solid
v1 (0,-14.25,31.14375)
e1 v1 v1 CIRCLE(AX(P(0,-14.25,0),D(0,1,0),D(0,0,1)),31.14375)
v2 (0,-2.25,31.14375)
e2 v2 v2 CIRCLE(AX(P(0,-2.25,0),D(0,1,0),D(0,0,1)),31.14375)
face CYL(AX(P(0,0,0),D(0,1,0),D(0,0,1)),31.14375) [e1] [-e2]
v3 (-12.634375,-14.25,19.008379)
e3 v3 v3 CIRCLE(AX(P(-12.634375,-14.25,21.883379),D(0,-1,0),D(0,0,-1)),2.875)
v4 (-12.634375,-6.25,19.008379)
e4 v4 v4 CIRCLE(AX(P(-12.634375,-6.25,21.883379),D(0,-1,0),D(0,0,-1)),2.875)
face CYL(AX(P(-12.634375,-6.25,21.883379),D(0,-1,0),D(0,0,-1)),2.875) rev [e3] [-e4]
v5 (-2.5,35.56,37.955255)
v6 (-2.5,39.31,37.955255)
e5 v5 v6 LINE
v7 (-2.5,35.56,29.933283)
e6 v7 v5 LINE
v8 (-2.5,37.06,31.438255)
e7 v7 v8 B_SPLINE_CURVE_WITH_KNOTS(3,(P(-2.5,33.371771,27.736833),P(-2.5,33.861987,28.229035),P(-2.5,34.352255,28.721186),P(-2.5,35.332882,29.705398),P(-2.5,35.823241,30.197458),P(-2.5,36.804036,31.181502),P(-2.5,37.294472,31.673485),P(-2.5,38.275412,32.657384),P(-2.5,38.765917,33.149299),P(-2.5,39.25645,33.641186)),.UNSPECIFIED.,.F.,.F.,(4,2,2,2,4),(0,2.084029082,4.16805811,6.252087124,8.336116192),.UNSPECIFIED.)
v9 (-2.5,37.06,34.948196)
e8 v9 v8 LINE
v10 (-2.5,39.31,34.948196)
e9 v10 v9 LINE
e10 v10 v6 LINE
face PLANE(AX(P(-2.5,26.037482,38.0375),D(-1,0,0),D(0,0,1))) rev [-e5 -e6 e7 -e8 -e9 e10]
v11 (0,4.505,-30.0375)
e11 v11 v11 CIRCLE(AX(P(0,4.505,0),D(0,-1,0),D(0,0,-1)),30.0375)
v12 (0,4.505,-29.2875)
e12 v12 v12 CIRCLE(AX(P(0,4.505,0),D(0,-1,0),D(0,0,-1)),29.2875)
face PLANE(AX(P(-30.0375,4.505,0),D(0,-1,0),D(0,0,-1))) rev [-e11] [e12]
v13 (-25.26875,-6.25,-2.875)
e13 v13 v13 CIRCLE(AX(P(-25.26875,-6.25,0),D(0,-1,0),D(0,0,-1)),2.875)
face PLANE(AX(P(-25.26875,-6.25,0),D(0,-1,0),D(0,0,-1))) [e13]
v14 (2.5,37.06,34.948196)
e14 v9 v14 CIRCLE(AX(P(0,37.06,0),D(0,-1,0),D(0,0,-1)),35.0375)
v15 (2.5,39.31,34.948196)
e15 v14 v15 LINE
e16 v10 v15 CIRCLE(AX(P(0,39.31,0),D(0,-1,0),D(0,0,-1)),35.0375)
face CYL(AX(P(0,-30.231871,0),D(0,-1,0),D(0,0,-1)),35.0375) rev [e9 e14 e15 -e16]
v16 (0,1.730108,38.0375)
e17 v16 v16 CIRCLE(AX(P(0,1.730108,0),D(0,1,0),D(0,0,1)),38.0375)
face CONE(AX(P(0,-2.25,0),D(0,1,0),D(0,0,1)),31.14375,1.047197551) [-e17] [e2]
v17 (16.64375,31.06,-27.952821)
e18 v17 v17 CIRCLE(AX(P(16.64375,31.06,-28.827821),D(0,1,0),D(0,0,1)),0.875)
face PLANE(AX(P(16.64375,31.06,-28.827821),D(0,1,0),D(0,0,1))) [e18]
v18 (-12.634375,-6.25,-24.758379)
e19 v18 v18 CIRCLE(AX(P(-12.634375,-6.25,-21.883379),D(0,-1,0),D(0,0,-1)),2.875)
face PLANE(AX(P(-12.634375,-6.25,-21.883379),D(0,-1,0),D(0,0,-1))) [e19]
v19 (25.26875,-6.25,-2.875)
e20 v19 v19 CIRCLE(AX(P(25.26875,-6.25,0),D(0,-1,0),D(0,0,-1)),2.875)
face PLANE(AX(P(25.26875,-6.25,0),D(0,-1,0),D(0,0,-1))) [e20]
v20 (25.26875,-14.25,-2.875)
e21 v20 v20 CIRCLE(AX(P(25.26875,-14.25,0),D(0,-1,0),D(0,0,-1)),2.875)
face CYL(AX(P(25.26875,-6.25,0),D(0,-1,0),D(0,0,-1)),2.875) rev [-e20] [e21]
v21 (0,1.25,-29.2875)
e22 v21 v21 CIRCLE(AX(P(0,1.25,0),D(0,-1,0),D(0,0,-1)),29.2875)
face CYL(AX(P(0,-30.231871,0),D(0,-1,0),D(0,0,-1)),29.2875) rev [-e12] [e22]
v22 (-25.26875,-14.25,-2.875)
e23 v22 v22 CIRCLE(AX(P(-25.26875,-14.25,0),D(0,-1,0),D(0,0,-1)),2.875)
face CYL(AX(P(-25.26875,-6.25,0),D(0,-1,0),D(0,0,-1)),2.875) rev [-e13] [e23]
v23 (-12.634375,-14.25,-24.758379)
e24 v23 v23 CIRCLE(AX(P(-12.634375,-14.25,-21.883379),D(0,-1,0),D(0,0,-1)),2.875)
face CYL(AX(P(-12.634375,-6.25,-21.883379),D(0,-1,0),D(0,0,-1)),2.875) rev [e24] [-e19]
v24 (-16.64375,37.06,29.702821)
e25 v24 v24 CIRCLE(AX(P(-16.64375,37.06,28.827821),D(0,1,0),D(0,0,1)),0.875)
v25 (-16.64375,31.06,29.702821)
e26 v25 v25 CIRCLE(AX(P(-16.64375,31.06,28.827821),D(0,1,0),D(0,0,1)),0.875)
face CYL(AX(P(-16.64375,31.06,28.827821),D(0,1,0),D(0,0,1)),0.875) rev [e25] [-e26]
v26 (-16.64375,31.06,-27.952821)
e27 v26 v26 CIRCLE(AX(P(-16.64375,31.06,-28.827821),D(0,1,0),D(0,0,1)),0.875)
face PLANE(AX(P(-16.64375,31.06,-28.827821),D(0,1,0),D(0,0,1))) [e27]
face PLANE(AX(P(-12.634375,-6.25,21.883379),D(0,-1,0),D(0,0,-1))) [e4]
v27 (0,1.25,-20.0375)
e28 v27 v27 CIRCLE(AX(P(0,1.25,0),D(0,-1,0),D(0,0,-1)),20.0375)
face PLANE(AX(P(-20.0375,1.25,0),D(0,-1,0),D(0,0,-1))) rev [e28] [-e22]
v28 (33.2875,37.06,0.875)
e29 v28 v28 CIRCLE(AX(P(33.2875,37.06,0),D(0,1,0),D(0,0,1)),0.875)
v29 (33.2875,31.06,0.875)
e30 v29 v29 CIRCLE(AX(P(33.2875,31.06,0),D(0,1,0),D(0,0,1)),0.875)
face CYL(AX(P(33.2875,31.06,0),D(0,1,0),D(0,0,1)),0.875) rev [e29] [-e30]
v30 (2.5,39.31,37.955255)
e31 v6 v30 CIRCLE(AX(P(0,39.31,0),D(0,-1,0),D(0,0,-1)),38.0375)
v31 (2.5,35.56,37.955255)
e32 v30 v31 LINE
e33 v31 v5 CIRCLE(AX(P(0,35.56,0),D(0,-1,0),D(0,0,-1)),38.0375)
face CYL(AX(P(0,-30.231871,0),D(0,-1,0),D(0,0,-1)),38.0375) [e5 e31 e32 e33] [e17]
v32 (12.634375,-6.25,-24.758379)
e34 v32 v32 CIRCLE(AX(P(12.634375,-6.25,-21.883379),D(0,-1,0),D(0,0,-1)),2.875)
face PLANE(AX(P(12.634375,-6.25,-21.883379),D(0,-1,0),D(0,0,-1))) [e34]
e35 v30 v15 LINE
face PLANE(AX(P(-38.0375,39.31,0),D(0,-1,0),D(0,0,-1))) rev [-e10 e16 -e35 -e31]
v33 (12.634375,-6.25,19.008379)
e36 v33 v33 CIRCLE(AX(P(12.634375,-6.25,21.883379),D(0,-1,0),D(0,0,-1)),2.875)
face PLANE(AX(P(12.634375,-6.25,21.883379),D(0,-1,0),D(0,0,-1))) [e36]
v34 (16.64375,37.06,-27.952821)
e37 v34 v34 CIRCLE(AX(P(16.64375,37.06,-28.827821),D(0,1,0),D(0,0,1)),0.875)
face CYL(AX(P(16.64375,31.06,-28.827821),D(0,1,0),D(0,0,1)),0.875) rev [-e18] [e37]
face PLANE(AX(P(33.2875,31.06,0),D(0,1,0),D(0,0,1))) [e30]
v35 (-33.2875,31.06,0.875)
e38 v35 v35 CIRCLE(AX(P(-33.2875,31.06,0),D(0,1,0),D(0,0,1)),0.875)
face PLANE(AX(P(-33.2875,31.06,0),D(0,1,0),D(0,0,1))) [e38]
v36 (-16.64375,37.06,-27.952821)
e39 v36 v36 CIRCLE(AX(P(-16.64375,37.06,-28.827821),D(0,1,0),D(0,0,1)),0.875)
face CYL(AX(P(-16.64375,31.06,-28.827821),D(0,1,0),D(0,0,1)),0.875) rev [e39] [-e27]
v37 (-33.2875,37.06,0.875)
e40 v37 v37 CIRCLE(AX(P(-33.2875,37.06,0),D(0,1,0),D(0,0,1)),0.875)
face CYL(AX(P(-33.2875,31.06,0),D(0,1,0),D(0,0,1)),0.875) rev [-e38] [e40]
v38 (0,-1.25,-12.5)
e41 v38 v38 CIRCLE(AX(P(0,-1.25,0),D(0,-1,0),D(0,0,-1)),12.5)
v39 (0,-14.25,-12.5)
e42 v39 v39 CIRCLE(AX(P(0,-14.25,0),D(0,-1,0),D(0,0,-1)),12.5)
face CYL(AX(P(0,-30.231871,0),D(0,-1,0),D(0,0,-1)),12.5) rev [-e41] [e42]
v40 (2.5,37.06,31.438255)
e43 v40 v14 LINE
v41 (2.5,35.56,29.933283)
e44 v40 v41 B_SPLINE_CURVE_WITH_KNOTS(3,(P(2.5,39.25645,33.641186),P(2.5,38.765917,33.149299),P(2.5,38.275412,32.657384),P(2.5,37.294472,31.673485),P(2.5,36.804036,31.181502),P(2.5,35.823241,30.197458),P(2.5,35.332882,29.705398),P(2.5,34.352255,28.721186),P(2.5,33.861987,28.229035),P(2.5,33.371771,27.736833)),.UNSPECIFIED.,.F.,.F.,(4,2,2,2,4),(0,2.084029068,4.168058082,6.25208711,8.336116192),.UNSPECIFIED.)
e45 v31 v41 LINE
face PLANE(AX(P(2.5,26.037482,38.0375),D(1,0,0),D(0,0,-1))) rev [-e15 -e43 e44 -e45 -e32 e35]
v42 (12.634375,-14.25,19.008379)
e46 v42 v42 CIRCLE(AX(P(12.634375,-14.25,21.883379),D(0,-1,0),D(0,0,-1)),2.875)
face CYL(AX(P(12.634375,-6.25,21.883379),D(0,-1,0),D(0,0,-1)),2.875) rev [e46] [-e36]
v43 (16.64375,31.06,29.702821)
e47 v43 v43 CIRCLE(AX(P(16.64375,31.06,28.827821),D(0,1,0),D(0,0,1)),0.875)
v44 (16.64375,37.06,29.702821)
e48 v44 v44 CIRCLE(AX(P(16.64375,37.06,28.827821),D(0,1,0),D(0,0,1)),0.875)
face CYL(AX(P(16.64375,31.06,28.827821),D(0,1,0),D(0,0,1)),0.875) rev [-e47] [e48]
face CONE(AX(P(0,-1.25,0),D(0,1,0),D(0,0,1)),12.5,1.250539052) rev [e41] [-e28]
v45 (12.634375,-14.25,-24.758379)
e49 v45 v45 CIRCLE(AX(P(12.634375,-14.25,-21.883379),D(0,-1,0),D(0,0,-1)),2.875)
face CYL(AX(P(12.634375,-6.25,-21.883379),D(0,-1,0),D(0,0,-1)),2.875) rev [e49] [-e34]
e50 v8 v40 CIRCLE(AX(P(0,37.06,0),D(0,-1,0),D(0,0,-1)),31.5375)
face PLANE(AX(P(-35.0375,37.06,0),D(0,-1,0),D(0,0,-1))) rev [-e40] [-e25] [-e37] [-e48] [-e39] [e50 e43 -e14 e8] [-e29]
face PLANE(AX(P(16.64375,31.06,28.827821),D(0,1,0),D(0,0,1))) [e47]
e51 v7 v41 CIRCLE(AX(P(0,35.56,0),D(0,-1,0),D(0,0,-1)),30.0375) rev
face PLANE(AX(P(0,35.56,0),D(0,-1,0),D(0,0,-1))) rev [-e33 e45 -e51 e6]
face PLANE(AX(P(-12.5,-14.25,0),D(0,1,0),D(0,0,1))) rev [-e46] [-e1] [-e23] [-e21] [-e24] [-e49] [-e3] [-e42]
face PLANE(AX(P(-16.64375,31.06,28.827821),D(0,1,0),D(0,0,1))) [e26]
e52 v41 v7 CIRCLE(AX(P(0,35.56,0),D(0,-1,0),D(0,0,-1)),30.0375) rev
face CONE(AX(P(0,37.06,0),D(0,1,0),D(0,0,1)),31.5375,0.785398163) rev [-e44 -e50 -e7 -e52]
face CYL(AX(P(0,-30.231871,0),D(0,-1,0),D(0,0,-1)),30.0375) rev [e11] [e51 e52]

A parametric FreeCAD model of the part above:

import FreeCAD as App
import Part
import Sketcher
Q = App.Units.Quantity


def edges_at(feature, points):
    """Names of the edges that pass closest to the given points."""
    edges = feature.Shape.Edges
    near = lambda p: min(range(len(edges)), key=lambda i: edges[i].distToShape(Part.Vertex(*p))[0])
    return sorted({f"Edge{near(p) + 1}" for p in points})

doc = App.newDocument("Part")
params = doc.addObject("Spreadsheet::Sheet", "Params")
for row, (alias, value) in enumerate([
    ("sketch1_width", "3 mm"),
    ("sketch1_width2", "5 mm"),
    ("sketch1_height", "13 mm"),
    ("sketch1_width3", "9.25 mm"),
    ("sketch1_height2", "53.56 mm"),
    ("revolution_angle", "360 deg"),
    ("chamfer_size", "1.5 mm"),
    ("sketch2_width", "5 mm"),
    ("pocket1_length", "3.75 mm"),
    ("sketch3_diameter", "1.75 mm"),
    ("pocket2_length", "6 mm"),
    ("sketch4_diameter", "5.75 mm"),
    ("pocket3_length", "8 mm"),
    ("sketch5_height", "12 mm"),
    ("groove_angle", "360 deg"),
], start=1):
    params.set(f"A{row}", alias)
    params.set(f"B{row}", "=" + value)
    params.setAlias(f"B{row}", alias)

body = doc.addObject("PartDesign::Body", "Body")

sketch1 = body.newObject("Sketcher::SketchObject", "Sketch")
sketch1.AttachmentSupport = (doc.getObject("XY_Plane"), [""])
sketch1.MapMode = "FlatFace"
sketch1.addGeometry([
    Part.LineSegment(App.Vector(-35, 39.3, 0), App.Vector(-38, 39.3, 0)),
    Part.LineSegment(App.Vector(-38, 39.3, 0), App.Vector(-38, -14.2, 0)),
    Part.LineSegment(App.Vector(-38, -14.2, 0), App.Vector(-12.5, -14.2, 0)),
    Part.LineSegment(App.Vector(-12.5, -14.2, 0), App.Vector(-12.5, -1.2, 0)),
    Part.LineSegment(App.Vector(-12.5, -1.2, 0), App.Vector(-20, 1.2, 0)),
    Part.LineSegment(App.Vector(-20, 1.2, 0), App.Vector(-29.3, 1.2, 0)),
    Part.LineSegment(App.Vector(-29.3, 1.2, 0), App.Vector(-29.3, 4.5, 0)),
    Part.LineSegment(App.Vector(-29.3, 4.5, 0), App.Vector(-30, 4.5, 0)),
    Part.LineSegment(App.Vector(-30, 4.5, 0), App.Vector(-30, 37.1, 0)),
    Part.LineSegment(App.Vector(-30, 37.1, 0), App.Vector(-35, 37.1, 0)),
    Part.LineSegment(App.Vector(-35, 37.1, 0), App.Vector(-35, 39.3, 0)),
], False)
sketch1.addConstraint([
    Sketcher.Constraint("Coincident", 0, 2, 1, 1),
    Sketcher.Constraint("Coincident", 1, 2, 2, 1),
    Sketcher.Constraint("Coincident", 2, 2, 3, 1),
    Sketcher.Constraint("Coincident", 3, 2, 4, 1),
    Sketcher.Constraint("Coincident", 4, 2, 5, 1),
    Sketcher.Constraint("Coincident", 5, 2, 6, 1),
    Sketcher.Constraint("Coincident", 6, 2, 7, 1),
    Sketcher.Constraint("Coincident", 7, 2, 8, 1),
    Sketcher.Constraint("Coincident", 8, 2, 9, 1),
    Sketcher.Constraint("Coincident", 9, 2, 10, 1),
    Sketcher.Constraint("Coincident", 10, 2, 0, 1),
    Sketcher.Constraint("Horizontal", 0),
    Sketcher.Constraint("Vertical", 1),
    Sketcher.Constraint("Horizontal", 2),
    Sketcher.Constraint("Vertical", 3),
    Sketcher.Constraint("Horizontal", 5),
    Sketcher.Constraint("Vertical", 6),
    Sketcher.Constraint("Horizontal", 7),
    Sketcher.Constraint("Vertical", 8),
    Sketcher.Constraint("Horizontal", 9),
    Sketcher.Constraint("Vertical", 10),
    Sketcher.Constraint("DistanceX", 0, 2, 0, 1, Q("3 mm")),
    Sketcher.Constraint("DistanceX", 9, 2, 9, 1, Q("5 mm")),
    Sketcher.Constraint("DistanceY", 3, 1, 3, 2, Q("13 mm")),
    Sketcher.Constraint("DistanceX", 1, 2, 4, 2, Q("18 mm")),
    Sketcher.Constraint("DistanceX", 5, 2, 5, 1, Q("9.25 mm")),
    Sketcher.Constraint("DistanceY", 1, 2, 1, 1, Q("53.56 mm")),
    Sketcher.Constraint("DistanceY", 10, 1, 10, 2, Q("2.25 mm")),
    Sketcher.Constraint("DistanceX", 2, 2, -1, 1, Q("12.5 mm")),
    Sketcher.Constraint("DistanceY", 3, 2, 4, 2, Q("2.5 mm")),
    Sketcher.Constraint("DistanceY", 6, 1, 6, 2, Q("3.255 mm")),
    Sketcher.Constraint("DistanceY", -1, 1, 0, 2, Q("39.31 mm")),
    Sketcher.Constraint("DistanceX", 2, 1, 2, 2, Q("25.5375 mm")),
])
sketch1.setExpression("Constraints[21]", "Params.sketch1_width")
sketch1.setExpression("Constraints[22]", "Params.sketch1_width2")
sketch1.setExpression("Constraints[23]", "Params.sketch1_height")
sketch1.setExpression("Constraints[25]", "Params.sketch1_width3")
sketch1.setExpression("Constraints[26]", "Params.sketch1_height2")
revolution = body.newObject("PartDesign::Revolution", "Revolution")
revolution.Profile = sketch1
revolution.ReferenceAxis = (sketch1, ["V_Axis"])
revolution.setExpression("Angle", "Params.revolution_angle")
doc.recompute()

chamfer = body.newObject("PartDesign::Chamfer", "Chamfer")
chamfer.Base = (revolution, edges_at(revolution, [(0, 37.06, 30.038)]))
chamfer.setExpression("Size", "Params.chamfer_size")

sketch2 = body.newObject("Sketcher::SketchObject", "Sketch001")
sketch2.AttachmentSupport = (doc.getObject("XZ_Plane"), [""])
sketch2.MapMode = "FlatFace"
sketch2.AttachmentOffset = App.Placement(App.Vector(0, 0, -35.56), App.Rotation())
sketch2.addGeometry([
    Part.LineSegment(App.Vector(-2, 30, 0), App.Vector(-2, 38, 0)),
    Part.LineSegment(App.Vector(-2, 38, 0), App.Vector(2, 38, 0)),
    Part.LineSegment(App.Vector(2, 38, 0), App.Vector(2, 30, 0)),
    Part.LineSegment(App.Vector(2, 30, 0), App.Vector(-2, 30, 0)),
], False)
sketch2.addConstraint([
    Sketcher.Constraint("Coincident", 0, 2, 1, 1),
    Sketcher.Constraint("Coincident", 1, 2, 2, 1),
    Sketcher.Constraint("Coincident", 2, 2, 3, 1),
    Sketcher.Constraint("Coincident", 3, 2, 0, 1),
    Sketcher.Constraint("Vertical", 0),
    Sketcher.Constraint("Horizontal", 1),
    Sketcher.Constraint("Vertical", 2),
    Sketcher.Constraint("Horizontal", 3),
    Sketcher.Constraint("DistanceX", 1, 1, 1, 2, Q("5 mm")),
    Sketcher.Constraint("DistanceX", 0, 2, -1, 1, Q("2.5 mm")),
    Sketcher.Constraint("DistanceY", -1, 1, 0, 2, Q("38.0375 mm")),
    Sketcher.Constraint("DistanceY", 0, 1, 0, 2, Q("8.104217 mm")),
])
sketch2.setExpression("Constraints[8]", "Params.sketch2_width")
pocket1 = body.newObject("PartDesign::Pocket", "Pocket")
pocket1.Profile = sketch2
pocket1.setExpression("Length", "Params.pocket1_length")

sketch3 = body.newObject("Sketcher::SketchObject", "Sketch002")
sketch3.AttachmentSupport = (doc.getObject("XZ_Plane"), [""])
sketch3.MapMode = "FlatFace"
sketch3.AttachmentOffset = App.Placement(App.Vector(0, 0, -37.06), App.Rotation())
sketch3.addGeometry([
    Part.Circle(App.Vector(-33.3, 0, 0), App.Vector(0, 0, 1), 0.9),
    Part.Circle(App.Vector(-16.6, -28.8, 0), App.Vector(0, 0, 1), 0.9),
    Part.Circle(App.Vector(16.6, -28.8, 0), App.Vector(0, 0, 1), 0.9),
    Part.Circle(App.Vector(33.3, 0, 0), App.Vector(0, 0, 1), 0.9),
    Part.Circle(App.Vector(16.6, 28.8, 0), App.Vector(0, 0, 1), 0.9),
    Part.Circle(App.Vector(-16.6, 28.8, 0), App.Vector(0, 0, 1), 0.9),
], False)
sketch3.addConstraint([
    Sketcher.Constraint("Equal", 0, 1),
    Sketcher.Constraint("Equal", 1, 2),
    Sketcher.Constraint("Equal", 2, 3),
    Sketcher.Constraint("Equal", 3, 4),
    Sketcher.Constraint("Equal", 4, 5),
    Sketcher.Constraint("Symmetric", 0, 3, 3, 3, -1, 1),
    Sketcher.Constraint("Symmetric", 1, 3, 4, 3, -1, 1),
    Sketcher.Constraint("Symmetric", 2, 3, 5, 3, -1, 1),
    Sketcher.Constraint("Symmetric", 1, 3, 2, 3, -2),
    Sketcher.Constraint("PointOnObject", 0, 3, -1),
    Sketcher.Constraint("Diameter", 0, Q("1.75 mm")),
    Sketcher.Constraint("DistanceX", 0, 3, 3, 3, Q("66.575 mm")),
    Sketcher.Constraint("DistanceX", 1, 3, 2, 3, Q("33.2875 mm")),
    Sketcher.Constraint("DistanceY", 1, 3, -1, 1, Q("28.827821 mm")),
])
sketch3.setExpression("Constraints[10]", "Params.sketch3_diameter")
pocket2 = body.newObject("PartDesign::Pocket", "Pocket001")
pocket2.Profile = sketch3
pocket2.setExpression("Length", "Params.pocket2_length")
pocket2.Reversed = True

sketch4 = body.newObject("Sketcher::SketchObject", "Sketch003")
sketch4.AttachmentSupport = (doc.getObject("XZ_Plane"), [""])
sketch4.MapMode = "FlatFace"
sketch4.AttachmentOffset = App.Placement(App.Vector(0, 0, 14.25), App.Rotation())
sketch4.addGeometry([
    Part.Circle(App.Vector(-25.3, 0, 0), App.Vector(0, 0, 1), 2.9),
    Part.Circle(App.Vector(-12.6, 21.9, 0), App.Vector(0, 0, 1), 2.9),
    Part.Circle(App.Vector(12.6, 21.9, 0), App.Vector(0, 0, 1), 2.9),
    Part.Circle(App.Vector(25.3, 0, 0), App.Vector(0, 0, 1), 2.9),
    Part.Circle(App.Vector(12.6, -21.9, 0), App.Vector(0, 0, 1), 2.9),
    Part.Circle(App.Vector(-12.6, -21.9, 0), App.Vector(0, 0, 1), 2.9),
], False)
sketch4.addConstraint([
    Sketcher.Constraint("Equal", 0, 1),
    Sketcher.Constraint("Equal", 1, 2),
    Sketcher.Constraint("Equal", 2, 3),
    Sketcher.Constraint("Equal", 3, 4),
    Sketcher.Constraint("Equal", 4, 5),
    Sketcher.Constraint("Symmetric", 0, 3, 3, 3, -1, 1),
    Sketcher.Constraint("Symmetric", 1, 3, 4, 3, -1, 1),
    Sketcher.Constraint("Symmetric", 2, 3, 5, 3, -1, 1),
    Sketcher.Constraint("Symmetric", 1, 3, 2, 3, -2),
    Sketcher.Constraint("PointOnObject", 0, 3, -1),
    Sketcher.Constraint("Diameter", 0, Q("5.75 mm")),
    Sketcher.Constraint("DistanceX", 0, 3, 3, 3, Q("50.5375 mm")),
    Sketcher.Constraint("DistanceY", -1, 1, 1, 3, Q("21.883379 mm")),
    Sketcher.Constraint("DistanceX", 1, 3, 2, 3, Q("25.26875 mm")),
])
sketch4.setExpression("Constraints[10]", "Params.sketch4_diameter")
pocket3 = body.newObject("PartDesign::Pocket", "Pocket002")
pocket3.Profile = sketch4
pocket3.setExpression("Length", "Params.pocket3_length")

sketch5 = body.newObject("Sketcher::SketchObject", "Sketch004")
sketch5.AttachmentSupport = (doc.getObject("XY_Plane"), [""])
sketch5.MapMode = "FlatFace"
sketch5.addGeometry([
    Part.LineSegment(App.Vector(31, -2, 0), App.Vector(31, -14, 0)),
    Part.LineSegment(App.Vector(31, -14, 0), App.Vector(38, -14, 0)),
    Part.LineSegment(App.Vector(38, -14, 0), App.Vector(38, 2, 0)),
    Part.LineSegment(App.Vector(38, 2, 0), App.Vector(31, -2, 0)),
], False)
sketch5.addConstraint([
    Sketcher.Constraint("Coincident", 0, 2, 1, 1),
    Sketcher.Constraint("Coincident", 1, 2, 2, 1),
    Sketcher.Constraint("Coincident", 2, 2, 3, 1),
    Sketcher.Constraint("Coincident", 3, 2, 0, 1),
    Sketcher.Constraint("Vertical", 0),
    Sketcher.Constraint("Horizontal", 1),
    Sketcher.Constraint("Vertical", 2),
    Sketcher.Constraint("DistanceY", 0, 2, 0, 1, Q("12 mm")),
    Sketcher.Constraint("Angle", 3, Q("-150 deg")),
    Sketcher.Constraint("DistanceY", 0, 2, -1, 1, Q("14.25 mm")),
    Sketcher.Constraint("DistanceX", 1, 1, 1, 2, Q("6.89375 mm")),
    Sketcher.Constraint("DistanceX", -1, 1, 1, 2, Q("38.0375 mm")),
])
sketch5.setExpression("Constraints[7]", "Params.sketch5_height")
groove = body.newObject("PartDesign::Groove", "Groove")
groove.Profile = sketch5
groove.ReferenceAxis = (sketch5, ["V_Axis"])
groove.setExpression("Angle", "Params.groove_angle")

doc.recompute()
